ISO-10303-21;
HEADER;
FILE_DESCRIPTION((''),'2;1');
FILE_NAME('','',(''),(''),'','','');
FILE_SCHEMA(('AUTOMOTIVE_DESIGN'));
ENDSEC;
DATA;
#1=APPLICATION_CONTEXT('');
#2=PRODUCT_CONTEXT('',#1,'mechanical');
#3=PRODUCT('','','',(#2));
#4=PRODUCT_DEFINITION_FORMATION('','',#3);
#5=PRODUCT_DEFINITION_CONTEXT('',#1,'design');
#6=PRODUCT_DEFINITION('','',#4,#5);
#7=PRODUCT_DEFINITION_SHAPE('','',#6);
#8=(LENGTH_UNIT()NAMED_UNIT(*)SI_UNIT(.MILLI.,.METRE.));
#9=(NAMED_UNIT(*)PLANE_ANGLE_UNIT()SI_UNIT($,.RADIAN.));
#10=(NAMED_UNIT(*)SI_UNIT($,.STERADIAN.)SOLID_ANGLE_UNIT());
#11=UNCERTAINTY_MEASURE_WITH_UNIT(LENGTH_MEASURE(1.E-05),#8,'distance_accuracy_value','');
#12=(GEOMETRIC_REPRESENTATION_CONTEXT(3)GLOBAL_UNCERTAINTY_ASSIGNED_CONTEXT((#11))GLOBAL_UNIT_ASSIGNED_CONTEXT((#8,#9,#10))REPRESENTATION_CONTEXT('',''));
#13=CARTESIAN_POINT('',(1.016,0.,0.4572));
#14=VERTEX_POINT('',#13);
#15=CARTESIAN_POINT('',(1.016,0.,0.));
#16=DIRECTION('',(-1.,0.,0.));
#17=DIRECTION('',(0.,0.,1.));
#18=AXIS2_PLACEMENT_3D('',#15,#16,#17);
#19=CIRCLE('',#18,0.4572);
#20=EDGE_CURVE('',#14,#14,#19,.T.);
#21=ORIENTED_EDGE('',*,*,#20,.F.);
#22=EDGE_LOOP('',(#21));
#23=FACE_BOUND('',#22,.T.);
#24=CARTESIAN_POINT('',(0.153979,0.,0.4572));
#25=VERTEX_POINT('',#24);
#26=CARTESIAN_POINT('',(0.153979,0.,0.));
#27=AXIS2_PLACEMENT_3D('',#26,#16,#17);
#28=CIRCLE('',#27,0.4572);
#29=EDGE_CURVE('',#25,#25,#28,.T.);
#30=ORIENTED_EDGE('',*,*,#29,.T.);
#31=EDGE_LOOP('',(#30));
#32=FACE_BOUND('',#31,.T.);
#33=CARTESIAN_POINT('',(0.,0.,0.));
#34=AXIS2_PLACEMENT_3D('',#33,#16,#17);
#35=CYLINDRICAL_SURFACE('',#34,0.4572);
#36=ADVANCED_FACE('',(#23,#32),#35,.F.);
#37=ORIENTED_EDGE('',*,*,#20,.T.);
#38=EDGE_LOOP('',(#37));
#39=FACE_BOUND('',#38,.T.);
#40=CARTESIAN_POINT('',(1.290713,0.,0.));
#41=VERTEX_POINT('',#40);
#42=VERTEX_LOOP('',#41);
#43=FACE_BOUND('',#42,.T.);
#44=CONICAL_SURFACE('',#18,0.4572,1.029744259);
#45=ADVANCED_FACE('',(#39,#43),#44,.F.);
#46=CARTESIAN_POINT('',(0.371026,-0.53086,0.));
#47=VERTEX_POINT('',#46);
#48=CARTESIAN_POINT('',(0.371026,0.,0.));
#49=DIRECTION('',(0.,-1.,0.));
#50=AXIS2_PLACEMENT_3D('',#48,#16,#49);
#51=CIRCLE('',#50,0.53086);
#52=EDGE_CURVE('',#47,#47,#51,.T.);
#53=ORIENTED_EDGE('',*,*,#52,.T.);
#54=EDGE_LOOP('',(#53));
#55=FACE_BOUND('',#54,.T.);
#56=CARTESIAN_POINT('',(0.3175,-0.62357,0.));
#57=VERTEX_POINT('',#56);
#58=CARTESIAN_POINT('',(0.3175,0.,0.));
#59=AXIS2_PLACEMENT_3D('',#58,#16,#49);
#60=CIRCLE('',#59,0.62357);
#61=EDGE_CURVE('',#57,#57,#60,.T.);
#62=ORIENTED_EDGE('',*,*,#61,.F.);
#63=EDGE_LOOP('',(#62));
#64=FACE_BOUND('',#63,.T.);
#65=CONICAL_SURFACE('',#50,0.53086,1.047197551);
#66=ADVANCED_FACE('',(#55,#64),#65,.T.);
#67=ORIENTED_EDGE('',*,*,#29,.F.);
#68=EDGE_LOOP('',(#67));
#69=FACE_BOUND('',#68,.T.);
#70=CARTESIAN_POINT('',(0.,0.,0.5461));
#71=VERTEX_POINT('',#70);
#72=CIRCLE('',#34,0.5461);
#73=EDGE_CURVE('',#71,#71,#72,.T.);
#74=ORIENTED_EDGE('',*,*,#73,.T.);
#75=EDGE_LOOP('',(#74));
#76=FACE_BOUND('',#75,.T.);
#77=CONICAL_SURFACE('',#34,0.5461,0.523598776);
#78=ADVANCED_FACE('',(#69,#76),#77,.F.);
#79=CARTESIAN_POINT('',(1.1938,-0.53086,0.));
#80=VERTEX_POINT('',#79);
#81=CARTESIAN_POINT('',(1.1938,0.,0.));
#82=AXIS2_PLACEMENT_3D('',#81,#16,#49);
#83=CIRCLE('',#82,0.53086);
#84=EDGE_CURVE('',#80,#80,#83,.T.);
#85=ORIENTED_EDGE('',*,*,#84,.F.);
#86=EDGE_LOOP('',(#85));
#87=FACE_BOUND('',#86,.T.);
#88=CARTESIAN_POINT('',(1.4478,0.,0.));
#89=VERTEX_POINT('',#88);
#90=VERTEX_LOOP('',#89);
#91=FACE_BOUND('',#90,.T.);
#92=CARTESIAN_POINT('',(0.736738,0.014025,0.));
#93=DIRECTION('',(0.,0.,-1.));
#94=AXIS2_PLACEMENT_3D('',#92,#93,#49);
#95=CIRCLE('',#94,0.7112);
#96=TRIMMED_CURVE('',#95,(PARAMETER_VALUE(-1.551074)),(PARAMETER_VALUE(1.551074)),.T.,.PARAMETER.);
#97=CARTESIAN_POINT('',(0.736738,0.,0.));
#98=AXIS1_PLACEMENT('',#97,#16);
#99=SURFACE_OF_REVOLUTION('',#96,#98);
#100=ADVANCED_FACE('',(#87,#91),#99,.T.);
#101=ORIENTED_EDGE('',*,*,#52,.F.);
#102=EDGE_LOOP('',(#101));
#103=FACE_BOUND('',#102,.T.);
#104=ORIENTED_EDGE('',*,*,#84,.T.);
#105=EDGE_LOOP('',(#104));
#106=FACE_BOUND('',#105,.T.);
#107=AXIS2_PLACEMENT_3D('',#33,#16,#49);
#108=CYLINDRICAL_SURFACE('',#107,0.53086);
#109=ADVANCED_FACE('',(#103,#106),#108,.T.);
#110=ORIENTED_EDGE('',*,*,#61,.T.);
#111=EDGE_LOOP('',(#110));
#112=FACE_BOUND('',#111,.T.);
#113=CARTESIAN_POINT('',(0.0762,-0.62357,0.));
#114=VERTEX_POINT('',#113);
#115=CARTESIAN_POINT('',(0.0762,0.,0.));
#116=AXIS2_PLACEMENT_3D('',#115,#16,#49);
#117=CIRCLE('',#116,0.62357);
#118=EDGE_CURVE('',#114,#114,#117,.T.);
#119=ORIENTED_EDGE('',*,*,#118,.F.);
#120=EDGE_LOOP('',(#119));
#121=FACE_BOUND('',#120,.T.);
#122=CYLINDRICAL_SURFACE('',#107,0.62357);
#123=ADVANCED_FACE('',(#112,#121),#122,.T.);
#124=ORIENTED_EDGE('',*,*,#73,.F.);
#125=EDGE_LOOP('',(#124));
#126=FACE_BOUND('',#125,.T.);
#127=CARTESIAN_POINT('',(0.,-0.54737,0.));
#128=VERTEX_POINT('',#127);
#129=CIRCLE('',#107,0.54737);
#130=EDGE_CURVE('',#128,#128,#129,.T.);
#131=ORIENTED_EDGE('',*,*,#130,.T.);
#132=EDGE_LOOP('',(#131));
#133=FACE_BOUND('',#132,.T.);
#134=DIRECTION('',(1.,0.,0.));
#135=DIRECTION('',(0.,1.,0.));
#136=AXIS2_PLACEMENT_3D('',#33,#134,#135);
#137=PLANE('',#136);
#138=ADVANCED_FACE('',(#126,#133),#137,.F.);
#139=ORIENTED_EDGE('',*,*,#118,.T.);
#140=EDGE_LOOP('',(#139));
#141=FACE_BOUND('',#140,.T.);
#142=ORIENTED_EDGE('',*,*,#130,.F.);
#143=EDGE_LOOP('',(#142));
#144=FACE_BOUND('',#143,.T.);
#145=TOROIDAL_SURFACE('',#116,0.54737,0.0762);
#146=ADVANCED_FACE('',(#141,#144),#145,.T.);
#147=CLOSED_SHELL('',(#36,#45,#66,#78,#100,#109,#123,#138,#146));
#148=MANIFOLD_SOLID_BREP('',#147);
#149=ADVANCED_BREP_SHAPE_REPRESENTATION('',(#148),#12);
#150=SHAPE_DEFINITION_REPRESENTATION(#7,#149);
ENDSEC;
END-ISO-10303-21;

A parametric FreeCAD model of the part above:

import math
import FreeCAD as App
import Part
import Sketcher

V = App.Vector
Q = App.Units.Quantity

doc = App.newDocument("Part")
body = doc.addObject("PartDesign::Body", "Body")

# Sketch on XY plane
sketch1 = body.newObject("Sketcher::SketchObject", "Sketch")
sketch1.AttachmentSupport = (doc.getObject("XY_Plane"), [""])
sketch1.MapMode = "FlatFace"
sketch1.addGeometry([
    Part.LineSegment(V(0, 0.54737, 0), V(0, 0, 0)),  # 0
    Part.LineSegment(V(0, 0, 0), V(1.4478, 0, 0)),  # 1
    Part.ArcOfCircle(Part.Circle(V(0.736738, -0.014025, 0), V(0, 0, 1), 0.7112), math.radians(1.129986), math.radians(50.009344)),  # 2
    Part.LineSegment(V(1.1938, 0.53086, 0), V(0.371026, 0.53086, 0)),  # 3
    Part.LineSegment(V(0.371026, 0.53086, 0), V(0.3175, 0.62357, 0)),  # 4
    Part.LineSegment(V(0.3175, 0.62357, 0), V(0.0762, 0.62357, 0)),  # 5
    Part.ArcOfCircle(Part.Circle(V(0.0762, 0.54737, 0), V(0, 0, 1), 0.0762), math.radians(89.999999), math.radians(180.000001)),  # 6
], False)
sketch1.addConstraint([
    Sketcher.Constraint("Coincident", 0, 2, 1, 1),
    Sketcher.Constraint("Coincident", 1, 2, 2, 1),
    Sketcher.Constraint("Coincident", 2, 2, 3, 1),
    Sketcher.Constraint("Coincident", 3, 2, 4, 1),
    Sketcher.Constraint("Coincident", 4, 2, 5, 1),
    Sketcher.Constraint("Tangent", 5, 2, 6, 1),
    Sketcher.Constraint("Tangent", 6, 2, 0, 1),
    Sketcher.Constraint("Vertical", 0),
    Sketcher.Constraint("Horizontal", 1),
    Sketcher.Constraint("Horizontal", 3),
    Sketcher.Constraint("Horizontal", 5),
    Sketcher.Constraint("Coincident", 0, 2, -1, 1),
    Sketcher.Constraint("Angle", 4, Q("120 deg")),
    Sketcher.Constraint("Radius", 2, Q("0.028 in")),
    Sketcher.Constraint("Radius", 6, Q("0.003 in")),
    Sketcher.Constraint("DistanceX", 1, 1, 1, 2, Q("0.057 in")),
    Sketcher.Constraint("DistanceX", 2, 2, 1, 2, Q("0.01 in")),
    Sketcher.Constraint("DistanceX", 5, 2, 5, 1, Q("0.0095 in")),
    Sketcher.Constraint("DistanceY", -1, 1, 2, 2, Q("0.0209 in")),
    Sketcher.Constraint("DistanceY", 0, 2, 0, 1, 0.54737),
])
revolution = body.newObject("PartDesign::Revolution", "Revolution")
revolution.Profile = sketch1
revolution.ReferenceAxis = (sketch1, ["H_Axis"])
revolution.Angle = 360

# Sketch on YZ plane
sketch2 = body.newObject("Sketcher::SketchObject", "Sketch001")
sketch2.AttachmentSupport = (doc.getObject("YZ_Plane"), [""])
sketch2.MapMode = "FlatFace"
sketch2.addGeometry(Part.Circle(V(0, 0, 0), V(0, 0, 1), 0.4572), False)
sketch2.addConstraint([
    Sketcher.Constraint("Coincident", 0, 3, -1, 1),
    Sketcher.Constraint("Diameter", 0, Q("0.036 in")),
])
doc.recompute()
hole = body.newObject("PartDesign::Hole", "Hole")
hole.Profile = sketch2
hole.ThreadType = "None"
hole.Diameter = Q("0.036 in")
hole.DepthType = "Dimension"
hole.Depth = Q("0.04 in")
hole.DrillPoint = "Angled"
hole.DrillPointAngle = 118
hole.HoleCutType = "Countersink"
hole.HoleCutDiameter = Q("0.043 in")
hole.HoleCutCountersinkAngle = 60
hole.Reversed = True

doc.recompute()
